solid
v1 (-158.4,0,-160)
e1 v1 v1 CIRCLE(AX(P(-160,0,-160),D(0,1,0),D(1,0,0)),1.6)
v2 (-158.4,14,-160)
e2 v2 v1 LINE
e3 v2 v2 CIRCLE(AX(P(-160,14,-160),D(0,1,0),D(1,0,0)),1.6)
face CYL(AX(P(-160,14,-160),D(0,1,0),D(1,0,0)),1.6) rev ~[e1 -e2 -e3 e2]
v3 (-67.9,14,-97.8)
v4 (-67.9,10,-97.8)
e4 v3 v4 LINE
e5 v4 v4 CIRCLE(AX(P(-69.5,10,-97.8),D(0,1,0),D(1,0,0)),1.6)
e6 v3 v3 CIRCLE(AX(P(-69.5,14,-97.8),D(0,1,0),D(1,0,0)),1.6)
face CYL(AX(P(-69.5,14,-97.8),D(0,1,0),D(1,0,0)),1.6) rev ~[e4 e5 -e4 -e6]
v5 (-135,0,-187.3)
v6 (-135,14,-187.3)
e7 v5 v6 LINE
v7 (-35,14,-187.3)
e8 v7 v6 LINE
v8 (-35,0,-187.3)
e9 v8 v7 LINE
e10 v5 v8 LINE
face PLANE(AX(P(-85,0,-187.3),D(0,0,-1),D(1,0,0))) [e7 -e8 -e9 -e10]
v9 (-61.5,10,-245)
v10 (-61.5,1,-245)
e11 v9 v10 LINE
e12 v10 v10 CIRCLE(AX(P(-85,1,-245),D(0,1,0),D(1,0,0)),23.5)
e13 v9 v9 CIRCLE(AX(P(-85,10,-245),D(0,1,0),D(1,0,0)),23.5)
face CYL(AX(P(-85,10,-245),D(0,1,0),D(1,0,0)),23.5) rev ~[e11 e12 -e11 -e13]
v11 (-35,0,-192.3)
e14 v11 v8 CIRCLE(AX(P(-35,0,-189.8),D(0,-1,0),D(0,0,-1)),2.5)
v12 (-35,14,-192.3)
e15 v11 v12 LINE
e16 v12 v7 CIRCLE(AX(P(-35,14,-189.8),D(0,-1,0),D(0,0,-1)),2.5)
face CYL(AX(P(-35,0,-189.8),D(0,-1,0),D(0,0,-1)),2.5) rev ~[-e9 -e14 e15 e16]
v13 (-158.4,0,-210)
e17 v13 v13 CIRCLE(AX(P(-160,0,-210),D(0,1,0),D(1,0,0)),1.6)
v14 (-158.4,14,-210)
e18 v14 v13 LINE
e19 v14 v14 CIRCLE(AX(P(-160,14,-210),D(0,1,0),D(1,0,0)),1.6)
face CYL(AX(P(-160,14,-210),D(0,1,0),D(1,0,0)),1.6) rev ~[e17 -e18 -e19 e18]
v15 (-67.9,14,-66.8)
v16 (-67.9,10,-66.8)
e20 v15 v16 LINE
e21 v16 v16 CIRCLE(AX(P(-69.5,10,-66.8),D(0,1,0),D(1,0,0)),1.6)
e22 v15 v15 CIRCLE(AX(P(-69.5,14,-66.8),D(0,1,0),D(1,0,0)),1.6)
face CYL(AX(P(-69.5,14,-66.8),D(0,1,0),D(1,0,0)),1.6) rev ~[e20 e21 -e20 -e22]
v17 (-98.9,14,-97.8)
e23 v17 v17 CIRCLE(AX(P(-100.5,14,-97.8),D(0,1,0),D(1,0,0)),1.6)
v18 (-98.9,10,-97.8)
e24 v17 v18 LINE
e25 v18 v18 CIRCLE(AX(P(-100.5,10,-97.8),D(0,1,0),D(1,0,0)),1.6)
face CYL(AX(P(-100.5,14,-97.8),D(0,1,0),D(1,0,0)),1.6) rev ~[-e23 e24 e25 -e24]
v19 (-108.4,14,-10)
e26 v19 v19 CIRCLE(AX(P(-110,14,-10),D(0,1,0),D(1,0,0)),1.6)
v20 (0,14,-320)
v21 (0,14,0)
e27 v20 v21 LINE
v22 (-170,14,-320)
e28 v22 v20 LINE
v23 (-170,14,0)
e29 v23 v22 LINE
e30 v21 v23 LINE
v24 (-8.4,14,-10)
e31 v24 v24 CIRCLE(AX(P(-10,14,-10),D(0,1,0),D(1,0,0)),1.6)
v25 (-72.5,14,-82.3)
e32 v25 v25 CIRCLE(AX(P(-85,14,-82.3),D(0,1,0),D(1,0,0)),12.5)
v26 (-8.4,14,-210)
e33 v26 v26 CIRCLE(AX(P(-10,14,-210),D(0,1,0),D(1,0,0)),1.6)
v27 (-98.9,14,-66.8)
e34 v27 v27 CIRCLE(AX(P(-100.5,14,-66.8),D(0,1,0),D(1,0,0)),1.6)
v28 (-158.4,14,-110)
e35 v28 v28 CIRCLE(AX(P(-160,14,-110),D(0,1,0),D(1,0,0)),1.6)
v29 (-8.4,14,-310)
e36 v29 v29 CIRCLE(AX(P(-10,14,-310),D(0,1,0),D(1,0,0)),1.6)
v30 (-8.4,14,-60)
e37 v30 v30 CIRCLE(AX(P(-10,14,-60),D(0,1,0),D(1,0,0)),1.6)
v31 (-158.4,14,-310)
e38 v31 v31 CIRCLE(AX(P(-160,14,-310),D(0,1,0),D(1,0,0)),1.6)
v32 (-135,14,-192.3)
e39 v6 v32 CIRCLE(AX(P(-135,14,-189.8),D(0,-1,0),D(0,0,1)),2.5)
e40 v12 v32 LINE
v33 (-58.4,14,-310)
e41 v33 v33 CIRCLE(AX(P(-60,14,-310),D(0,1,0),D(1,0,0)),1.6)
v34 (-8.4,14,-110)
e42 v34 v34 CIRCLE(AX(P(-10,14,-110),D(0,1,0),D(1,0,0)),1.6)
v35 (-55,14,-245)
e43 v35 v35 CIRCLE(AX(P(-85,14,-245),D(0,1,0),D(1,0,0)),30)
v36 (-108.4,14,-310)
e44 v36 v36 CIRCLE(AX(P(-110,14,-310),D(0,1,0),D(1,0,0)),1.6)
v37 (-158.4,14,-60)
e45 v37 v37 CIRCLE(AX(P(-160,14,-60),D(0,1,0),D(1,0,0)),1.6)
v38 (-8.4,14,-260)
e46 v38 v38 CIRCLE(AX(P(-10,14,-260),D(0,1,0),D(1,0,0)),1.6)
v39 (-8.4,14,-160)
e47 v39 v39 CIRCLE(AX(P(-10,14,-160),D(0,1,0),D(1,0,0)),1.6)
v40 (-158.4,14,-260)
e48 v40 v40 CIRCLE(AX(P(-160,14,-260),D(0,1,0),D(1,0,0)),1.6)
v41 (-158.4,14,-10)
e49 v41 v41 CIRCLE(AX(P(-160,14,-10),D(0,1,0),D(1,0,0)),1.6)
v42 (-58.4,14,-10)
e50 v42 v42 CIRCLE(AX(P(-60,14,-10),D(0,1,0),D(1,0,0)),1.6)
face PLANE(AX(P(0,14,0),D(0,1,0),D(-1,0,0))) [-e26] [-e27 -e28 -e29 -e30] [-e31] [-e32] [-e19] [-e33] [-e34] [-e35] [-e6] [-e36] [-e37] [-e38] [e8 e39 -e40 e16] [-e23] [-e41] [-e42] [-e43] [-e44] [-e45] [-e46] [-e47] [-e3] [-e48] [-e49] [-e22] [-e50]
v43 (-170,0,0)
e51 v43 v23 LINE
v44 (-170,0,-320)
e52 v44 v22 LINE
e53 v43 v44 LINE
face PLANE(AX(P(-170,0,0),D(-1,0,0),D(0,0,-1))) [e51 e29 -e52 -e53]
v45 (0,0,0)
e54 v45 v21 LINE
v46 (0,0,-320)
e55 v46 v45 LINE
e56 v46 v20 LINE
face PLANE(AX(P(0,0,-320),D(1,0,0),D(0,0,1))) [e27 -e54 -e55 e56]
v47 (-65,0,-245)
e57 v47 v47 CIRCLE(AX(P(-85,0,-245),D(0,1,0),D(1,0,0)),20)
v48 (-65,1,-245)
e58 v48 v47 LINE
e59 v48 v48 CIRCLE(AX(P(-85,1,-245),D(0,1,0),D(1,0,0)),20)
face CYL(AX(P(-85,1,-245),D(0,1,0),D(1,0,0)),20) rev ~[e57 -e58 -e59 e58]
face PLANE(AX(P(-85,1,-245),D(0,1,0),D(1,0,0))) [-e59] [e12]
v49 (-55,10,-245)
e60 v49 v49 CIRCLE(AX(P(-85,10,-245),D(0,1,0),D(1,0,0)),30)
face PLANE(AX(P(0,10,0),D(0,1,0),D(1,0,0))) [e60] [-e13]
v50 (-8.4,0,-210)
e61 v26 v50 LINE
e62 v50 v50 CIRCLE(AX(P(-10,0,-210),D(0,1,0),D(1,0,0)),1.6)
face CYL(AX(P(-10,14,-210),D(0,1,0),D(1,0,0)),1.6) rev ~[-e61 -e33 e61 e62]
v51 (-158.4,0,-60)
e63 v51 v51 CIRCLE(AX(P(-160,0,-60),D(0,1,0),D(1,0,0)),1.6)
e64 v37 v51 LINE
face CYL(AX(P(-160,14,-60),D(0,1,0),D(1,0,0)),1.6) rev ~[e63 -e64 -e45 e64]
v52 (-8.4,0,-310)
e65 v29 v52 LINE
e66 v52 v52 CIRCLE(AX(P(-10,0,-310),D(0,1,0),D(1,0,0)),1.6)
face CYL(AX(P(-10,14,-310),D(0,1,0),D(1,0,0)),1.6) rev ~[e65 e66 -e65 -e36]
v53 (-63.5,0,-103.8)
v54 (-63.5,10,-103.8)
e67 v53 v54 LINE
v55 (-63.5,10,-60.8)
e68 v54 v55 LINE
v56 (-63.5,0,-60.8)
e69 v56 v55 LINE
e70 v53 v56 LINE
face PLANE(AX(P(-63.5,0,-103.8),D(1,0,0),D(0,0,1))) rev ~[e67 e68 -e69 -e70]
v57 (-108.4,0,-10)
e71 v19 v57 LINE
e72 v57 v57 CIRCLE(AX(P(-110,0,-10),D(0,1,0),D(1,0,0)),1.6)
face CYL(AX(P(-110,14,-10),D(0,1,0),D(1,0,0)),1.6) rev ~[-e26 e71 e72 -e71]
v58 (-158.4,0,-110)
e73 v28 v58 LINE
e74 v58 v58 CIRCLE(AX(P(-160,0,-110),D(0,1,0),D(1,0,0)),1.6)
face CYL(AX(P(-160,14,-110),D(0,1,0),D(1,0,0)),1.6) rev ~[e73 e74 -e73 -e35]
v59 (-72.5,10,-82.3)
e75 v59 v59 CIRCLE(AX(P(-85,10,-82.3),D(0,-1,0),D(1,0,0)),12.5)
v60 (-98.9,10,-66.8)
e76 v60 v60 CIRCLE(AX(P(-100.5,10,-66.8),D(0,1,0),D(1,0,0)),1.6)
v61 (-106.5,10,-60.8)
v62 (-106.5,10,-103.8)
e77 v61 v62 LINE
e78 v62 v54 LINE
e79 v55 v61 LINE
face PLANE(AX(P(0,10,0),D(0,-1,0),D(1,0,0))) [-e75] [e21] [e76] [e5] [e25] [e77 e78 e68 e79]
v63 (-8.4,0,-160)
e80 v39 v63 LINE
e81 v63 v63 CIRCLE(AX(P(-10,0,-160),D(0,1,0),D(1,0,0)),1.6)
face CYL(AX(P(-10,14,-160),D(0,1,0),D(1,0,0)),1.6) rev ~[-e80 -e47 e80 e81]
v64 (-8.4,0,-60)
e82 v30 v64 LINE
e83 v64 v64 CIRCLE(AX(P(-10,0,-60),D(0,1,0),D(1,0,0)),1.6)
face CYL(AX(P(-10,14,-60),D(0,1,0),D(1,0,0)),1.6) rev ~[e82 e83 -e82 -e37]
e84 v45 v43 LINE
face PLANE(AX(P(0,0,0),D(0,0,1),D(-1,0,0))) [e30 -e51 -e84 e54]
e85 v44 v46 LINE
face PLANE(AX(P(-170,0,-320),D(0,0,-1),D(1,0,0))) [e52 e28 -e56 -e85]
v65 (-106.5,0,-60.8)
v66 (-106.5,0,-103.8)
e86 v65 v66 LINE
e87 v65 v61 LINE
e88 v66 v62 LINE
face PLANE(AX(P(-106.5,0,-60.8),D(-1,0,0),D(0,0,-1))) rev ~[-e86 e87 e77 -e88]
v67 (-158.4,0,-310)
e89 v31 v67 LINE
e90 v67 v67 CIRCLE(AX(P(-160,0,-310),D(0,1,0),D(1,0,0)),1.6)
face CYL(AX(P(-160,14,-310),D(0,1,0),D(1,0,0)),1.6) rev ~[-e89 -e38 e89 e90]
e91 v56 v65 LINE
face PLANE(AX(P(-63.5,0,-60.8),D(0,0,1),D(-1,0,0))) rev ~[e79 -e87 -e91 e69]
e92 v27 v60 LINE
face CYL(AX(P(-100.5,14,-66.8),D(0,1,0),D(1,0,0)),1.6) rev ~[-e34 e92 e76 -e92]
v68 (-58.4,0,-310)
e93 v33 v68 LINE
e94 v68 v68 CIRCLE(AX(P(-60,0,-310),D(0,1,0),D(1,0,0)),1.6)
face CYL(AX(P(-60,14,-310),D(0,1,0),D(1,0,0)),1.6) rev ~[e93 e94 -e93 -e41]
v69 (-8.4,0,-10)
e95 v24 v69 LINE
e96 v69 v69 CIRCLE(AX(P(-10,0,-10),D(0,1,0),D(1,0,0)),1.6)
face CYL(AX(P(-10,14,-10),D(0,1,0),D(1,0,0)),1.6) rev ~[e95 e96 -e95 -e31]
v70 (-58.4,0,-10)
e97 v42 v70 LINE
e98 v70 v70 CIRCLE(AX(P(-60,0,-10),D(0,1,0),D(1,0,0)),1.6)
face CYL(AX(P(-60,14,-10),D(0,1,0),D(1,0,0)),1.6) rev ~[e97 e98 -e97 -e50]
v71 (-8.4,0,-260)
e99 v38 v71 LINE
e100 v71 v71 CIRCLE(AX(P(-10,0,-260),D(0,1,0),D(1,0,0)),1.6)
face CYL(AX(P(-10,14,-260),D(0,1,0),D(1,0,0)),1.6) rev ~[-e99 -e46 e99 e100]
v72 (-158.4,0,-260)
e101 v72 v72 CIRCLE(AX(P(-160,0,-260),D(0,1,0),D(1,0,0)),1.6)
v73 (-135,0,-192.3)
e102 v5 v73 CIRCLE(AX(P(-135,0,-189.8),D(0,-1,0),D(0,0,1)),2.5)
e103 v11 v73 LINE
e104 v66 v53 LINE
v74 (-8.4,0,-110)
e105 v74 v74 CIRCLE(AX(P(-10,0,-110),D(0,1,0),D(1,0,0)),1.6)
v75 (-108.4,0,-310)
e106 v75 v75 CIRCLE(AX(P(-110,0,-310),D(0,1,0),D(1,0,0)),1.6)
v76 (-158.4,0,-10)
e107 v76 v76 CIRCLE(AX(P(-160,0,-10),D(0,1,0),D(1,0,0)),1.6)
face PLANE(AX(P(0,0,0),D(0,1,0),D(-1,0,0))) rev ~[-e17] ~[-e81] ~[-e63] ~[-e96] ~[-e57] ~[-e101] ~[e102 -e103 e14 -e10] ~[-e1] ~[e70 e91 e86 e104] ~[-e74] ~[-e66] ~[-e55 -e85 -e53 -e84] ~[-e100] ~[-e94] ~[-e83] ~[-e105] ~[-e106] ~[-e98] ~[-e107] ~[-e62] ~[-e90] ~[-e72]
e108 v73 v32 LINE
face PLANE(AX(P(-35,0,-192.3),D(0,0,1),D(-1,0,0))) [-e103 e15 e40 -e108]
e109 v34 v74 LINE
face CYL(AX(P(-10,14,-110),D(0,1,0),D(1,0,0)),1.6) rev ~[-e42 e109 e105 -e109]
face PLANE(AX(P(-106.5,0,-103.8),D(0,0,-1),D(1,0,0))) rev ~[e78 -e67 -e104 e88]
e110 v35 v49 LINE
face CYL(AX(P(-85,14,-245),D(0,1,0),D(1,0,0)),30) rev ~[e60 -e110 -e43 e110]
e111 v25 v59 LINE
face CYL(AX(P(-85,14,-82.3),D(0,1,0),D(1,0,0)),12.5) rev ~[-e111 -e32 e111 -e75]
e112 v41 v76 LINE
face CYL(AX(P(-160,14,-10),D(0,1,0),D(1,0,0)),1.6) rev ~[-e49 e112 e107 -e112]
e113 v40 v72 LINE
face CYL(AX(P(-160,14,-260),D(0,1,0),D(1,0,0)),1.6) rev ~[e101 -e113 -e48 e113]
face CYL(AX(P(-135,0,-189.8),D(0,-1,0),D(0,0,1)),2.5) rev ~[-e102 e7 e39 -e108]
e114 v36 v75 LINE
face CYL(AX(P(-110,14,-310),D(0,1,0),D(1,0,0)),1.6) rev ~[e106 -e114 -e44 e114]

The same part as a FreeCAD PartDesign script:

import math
import FreeCAD as App
import Part
import Sketcher

doc = App.newDocument("Part")
body = doc.addObject("PartDesign::Body", "Body")

sketch1 = doc.addObject("Sketcher::SketchObject", "Sketch")
body.addObject(sketch1)
sketch1.AttachmentSupport = (doc.XZ_Plane, [""])
sketch1.MapMode = "FlatFace"
sketch1.addGeometry([
    Part.LineSegment(App.Vector(-170, 0, 0), App.Vector(0, 0, 0)),
    Part.LineSegment(App.Vector(0, 0, 0), App.Vector(0, -320, 0)),
    Part.LineSegment(App.Vector(0, -320, 0), App.Vector(-170, -320, 0)),
    Part.LineSegment(App.Vector(-170, -320, 0), App.Vector(-170, 0, 0)),
], False)
sketch1.addConstraint([
    Sketcher.Constraint("Coincident", 0, 2, 1, 1),
    Sketcher.Constraint("Coincident", 1, 2, 2, 1),
    Sketcher.Constraint("Coincident", 2, 2, 3, 1),
    Sketcher.Constraint("Coincident", 3, 2, 0, 1),
    Sketcher.Constraint("Horizontal", 0),
    Sketcher.Constraint("Vertical", 1),
    Sketcher.Constraint("Horizontal", 2),
    Sketcher.Constraint("Vertical", 3),
    Sketcher.Constraint("Coincident", 0, 2, -1, 1),
    Sketcher.Constraint("DistanceX", 0, 1, 0, 2, 170.0),
    Sketcher.Constraint("DistanceY", 1, 2, 1, 1, 320.0),
])
pad1 = doc.addObject("PartDesign::Pad", "Pad")
body.addObject(pad1)
pad1.Profile = sketch1
pad1.Length = 14
pad1.Reversed = True

sketch2 = doc.addObject("Sketcher::SketchObject", "Sketch001")
body.addObject(sketch2)
sketch2.AttachmentSupport = (doc.XZ_Plane, [""])
sketch2.MapMode = "FlatFace"
sketch2.AttachmentOffset = App.Placement(App.Vector(0, 0, -14), App.Rotation())
sketch2.addGeometry(Part.Circle(App.Vector(-85, -245, 0), App.Vector(0, 0, 1), 30), False)
sketch2.addConstraint([
    Sketcher.Constraint("Diameter", 0, 60.0),
    Sketcher.Constraint("DistanceX", 0, 3, -1, 1, 85.0),
    Sketcher.Constraint("DistanceY", 0, 3, -1, 1, 245.0),
])
pocket1 = doc.addObject("PartDesign::Pocket", "Pocket")
body.addObject(pocket1)
pocket1.Profile = sketch2
pocket1.Length = 4
pocket1.Reversed = True

sketch3 = doc.addObject("Sketcher::SketchObject", "Sketch002")
body.addObject(sketch3)
sketch3.AttachmentSupport = (doc.XZ_Plane, [""])
sketch3.MapMode = "FlatFace"
sketch3.AttachmentOffset = App.Placement(App.Vector(0, 0, -10), App.Rotation())
sketch3.addGeometry(Part.Circle(App.Vector(-85, -245, 0), App.Vector(0, 0, 1), 23.5), False)
sketch3.addConstraint([
    Sketcher.Constraint("Diameter", 0, 47.0),
    Sketcher.Constraint("DistanceX", 0, 3, -1, 1, 85.0),
    Sketcher.Constraint("DistanceY", 0, 3, -1, 1, 245.0),
])
pocket2 = doc.addObject("PartDesign::Pocket", "Pocket001")
body.addObject(pocket2)
pocket2.Profile = sketch3
pocket2.Length = 9
pocket2.Reversed = True

sketch4 = doc.addObject("Sketcher::SketchObject", "Sketch003")
body.addObject(sketch4)
sketch4.AttachmentSupport = (doc.XZ_Plane, [""])
sketch4.MapMode = "FlatFace"
sketch4.AttachmentOffset = App.Placement(App.Vector(0, 0, -1), App.Rotation())
sketch4.addGeometry(Part.Circle(App.Vector(-85, -245, 0), App.Vector(0, 0, 1), 20), False)
sketch4.addConstraint([
    Sketcher.Constraint("Diameter", 0, 40.0),
    Sketcher.Constraint("DistanceX", 0, 3, -1, 1, 85.0),
    Sketcher.Constraint("DistanceY", 0, 3, -1, 1, 245.0),
])
pocket3 = doc.addObject("PartDesign::Pocket", "Pocket002")
body.addObject(pocket3)
pocket3.Profile = sketch4
pocket3.Length = 1
pocket3.Reversed = True

sketch5 = doc.addObject("Sketcher::SketchObject", "Sketch004")
body.addObject(sketch5)
sketch5.AttachmentSupport = (doc.XZ_Plane, [""])
sketch5.MapMode = "FlatFace"
sketch5.AttachmentOffset = App.Placement(App.Vector(0, 0, -14), App.Rotation())
sketch5.addGeometry([
    Part.Circle(App.Vector(-85, -82.3, 0), App.Vector(0, 0, 1), 12.5),
    Part.Circle(App.Vector(-100.5, -66.8, 0), App.Vector(0, 0, 1), 1.6),
    Part.Circle(App.Vector(-100.5, -97.8, 0), App.Vector(0, 0, 1), 1.6),
    Part.Circle(App.Vector(-69.5, -97.8, 0), App.Vector(0, 0, 1), 1.6),
    Part.Circle(App.Vector(-69.5, -66.8, 0), App.Vector(0, 0, 1), 1.6),
], False)
sketch5.addConstraint([
    Sketcher.Constraint("Equal", 1, 2),
    Sketcher.Constraint("Equal", 2, 3),
    Sketcher.Constraint("Equal", 3, 4),
    Sketcher.Constraint("Horizontal", 2, 3, 3, 3),
    Sketcher.Constraint("Horizontal", 1, 3, 4, 3),
    Sketcher.Constraint("Vertical", 1, 3, 2, 3),
    Sketcher.Constraint("Vertical", 3, 3, 4, 3),
    Sketcher.Constraint("Diameter", 0, 25.0),
    Sketcher.Constraint("Diameter", 1, 3.2),
    Sketcher.Constraint("DistanceX", 0, 3, -1, 1, 85.0),
    Sketcher.Constraint("DistanceY", 2, 3, 1, 3, 31.0),
    Sketcher.Constraint("DistanceX", 2, 3, 3, 3, 31.0),
    Sketcher.Constraint("DistanceY", 0, 3, -1, 1, 82.3),
    Sketcher.Constraint("DistanceX", 1, 3, -1, 1, 100.5),
    Sketcher.Constraint("DistanceY", 1, 3, -1, 1, 66.8),
])
pocket4 = doc.addObject("PartDesign::Pocket", "Pocket003")
body.addObject(pocket4)
pocket4.Profile = sketch5
pocket4.Length = 14
pocket4.Reversed = True

sketch6 = doc.addObject("Sketcher::SketchObject", "Sketch005")
body.addObject(sketch6)
sketch6.AttachmentSupport = (doc.XZ_Plane, [""])
sketch6.MapMode = "FlatFace"
sketch6.addGeometry([
    Part.LineSegment(App.Vector(-106.5, -60.8, 0), App.Vector(-106.5, -103.8, 0)),
    Part.LineSegment(App.Vector(-106.5, -103.8, 0), App.Vector(-63.5, -103.8, 0)),
    Part.LineSegment(App.Vector(-63.5, -103.8, 0), App.Vector(-63.5, -60.8, 0)),
    Part.LineSegment(App.Vector(-63.5, -60.8, 0), App.Vector(-106.5, -60.8, 0)),
    Part.Circle(App.Vector(-85, -82.3, 0), App.Vector(0, 0, 1), 12.5),
], False)
sketch6.addConstraint([
    Sketcher.Constraint("Coincident", 0, 2, 1, 1),
    Sketcher.Constraint("Coincident", 1, 2, 2, 1),
    Sketcher.Constraint("Coincident", 2, 2, 3, 1),
    Sketcher.Constraint("Coincident", 3, 2, 0, 1),
    Sketcher.Constraint("Vertical", 0),
    Sketcher.Constraint("Horizontal", 1),
    Sketcher.Constraint("Vertical", 2),
    Sketcher.Constraint("Horizontal", 3),
    Sketcher.Constraint("Equal", 3, 0),
    Sketcher.Constraint("DistanceX", 1, 1, 1, 2, 43.0),
    Sketcher.Constraint("Diameter", 4, 25.0),
    Sketcher.Constraint("DistanceX", 4, 3, -1, 1, 85.0),
    Sketcher.Constraint("DistanceY", 4, 3, -1, 1, 82.3),
    Sketcher.Constraint("DistanceX", 0, 2, -1, 1, 106.5),
    Sketcher.Constraint("DistanceY", 0, 2, -1, 1, 103.8),
])
pocket5 = doc.addObject("PartDesign::Pocket", "Pocket004")
body.addObject(pocket5)
pocket5.Profile = sketch6
pocket5.Length = 10

sketch7 = doc.addObject("Sketcher::SketchObject", "Sketch006")
body.addObject(sketch7)
sketch7.AttachmentSupport = (doc.XZ_Plane, [""])
sketch7.MapMode = "FlatFace"
sketch7.addGeometry([
    Part.LineSegment(App.Vector(-35, -187.3, 0), App.Vector(-135, -187.3, 0)),
    Part.ArcOfCircle(Part.Circle(App.Vector(-135, -189.8, 0), App.Vector(0, 0, 1), 2.5), math.radians(90), math.radians(270)),
    Part.LineSegment(App.Vector(-135, -192.3, 0), App.Vector(-35, -192.3, 0)),
    Part.ArcOfCircle(Part.Circle(App.Vector(-35, -189.8, 0), App.Vector(0, 0, 1), 2.5), math.radians(-90), math.radians(90)),
], False)
sketch7.addConstraint([
    Sketcher.Constraint("Tangent", 0, 2, 1, 1),
    Sketcher.Constraint("Tangent", 1, 2, 2, 1),
    Sketcher.Constraint("Tangent", 2, 2, 3, 1),
    Sketcher.Constraint("Tangent", 3, 2, 0, 1),
    Sketcher.Constraint("Horizontal", 0),
    Sketcher.Constraint("Horizontal", 2),
    Sketcher.Constraint("Radius", 1, 2.5),
    Sketcher.Constraint("DistanceX", 0, 2, 0, 1, 100.0),
    Sketcher.Constraint("DistanceX", 1, 3, -1, 1, 135.0),
    Sketcher.Constraint("DistanceY", 1, 3, -1, 1, 189.8),
])
pocket6 = doc.addObject("PartDesign::Pocket", "Pocket005")
body.addObject(pocket6)
pocket6.Profile = sketch7
pocket6.Length = 14

sketch8 = doc.addObject("Sketcher::SketchObject", "Sketch007")
body.addObject(sketch8)
sketch8.AttachmentSupport = (doc.XZ_Plane, [""])
sketch8.MapMode = "FlatFace"
sketch8.AttachmentOffset = App.Placement(App.Vector(0, 0, -14), App.Rotation())
sketch8.addGeometry([
    Part.Circle(App.Vector(-10, -310, 0), App.Vector(0, 0, 1), 1.6),
    Part.Circle(App.Vector(-160, -310, 0), App.Vector(0, 0, 1), 1.6),
], False)
sketch8.addConstraint([
    Sketcher.Constraint("Equal", 0, 1),
    Sketcher.Constraint("Horizontal", 0, 3, 1, 3),
    Sketcher.Constraint("Diameter", 0, 3.2),
    Sketcher.Constraint("DistanceX", 0, 3, -1, 1, 10.0),
    Sketcher.Constraint("DistanceY", 0, 3, -1, 1, 310.0),
    Sketcher.Constraint("DistanceX", 1, 3, -1, 1, 160.0),
])
pocket7 = doc.addObject("PartDesign::Pocket", "Pocket006")
body.addObject(pocket7)
pocket7.Profile = sketch8
pocket7.Length = 14
pocket7.Reversed = True
doc.recompute()

linearpattern = doc.addObject("PartDesign::LinearPattern", "LinearPattern")
body.addObject(linearpattern)
linearpattern.Originals = [pocket7]
linearpattern.Direction = (doc.Z_Axis, [""])
linearpattern.Mode = "offset"
linearpattern.Offset = 50
linearpattern.Occurrences = 7
body.Tip = linearpattern

sketch9 = doc.addObject("Sketcher::SketchObject", "Sketch008")
body.addObject(sketch9)
sketch9.AttachmentSupport = (doc.XZ_Plane, [""])
sketch9.MapMode = "FlatFace"
sketch9.AttachmentOffset = App.Placement(App.Vector(0, 0, -14), App.Rotation())
sketch9.addGeometry([
    Part.Circle(App.Vector(-110, -310, 0), App.Vector(0, 0, 1), 1.6),
    Part.Circle(App.Vector(-110, -10, 0), App.Vector(0, 0, 1), 1.6),
], False)
sketch9.addConstraint([
    Sketcher.Constraint("Equal", 0, 1),
    Sketcher.Constraint("Vertical", 0, 3, 1, 3),
    Sketcher.Constraint("Diameter", 0, 3.2),
    Sketcher.Constraint("DistanceX", 0, 3, -1, 1, 110.0),
    Sketcher.Constraint("DistanceY", 0, 3, -1, 1, 310.0),
    Sketcher.Constraint("DistanceY", 1, 3, -1, 1, 10.0),
])
pocket8 = doc.addObject("PartDesign::Pocket", "Pocket007")
body.addObject(pocket8)
pocket8.Profile = sketch9
pocket8.Length = 14
pocket8.Reversed = True
doc.recompute()

linearpattern2 = doc.addObject("PartDesign::LinearPattern", "LinearPattern001")
body.addObject(linearpattern2)
linearpattern2.Originals = [pocket8]
linearpattern2.Direction = (doc.X_Axis, [""])
linearpattern2.Mode = "offset"
linearpattern2.Offset = 50
linearpattern2.Occurrences = 2
body.Tip = linearpattern2

doc.recompute()
